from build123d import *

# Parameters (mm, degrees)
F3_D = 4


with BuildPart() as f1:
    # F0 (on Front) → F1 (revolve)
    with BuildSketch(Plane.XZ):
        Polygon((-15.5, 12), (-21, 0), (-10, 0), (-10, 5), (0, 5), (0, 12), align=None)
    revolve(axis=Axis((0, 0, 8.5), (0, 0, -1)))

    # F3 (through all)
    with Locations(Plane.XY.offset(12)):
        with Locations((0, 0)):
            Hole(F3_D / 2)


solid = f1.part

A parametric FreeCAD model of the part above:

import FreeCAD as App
import Part
import Sketcher
from FreeCAD import Vector
Q = App.Units.Quantity


def add_polygon(sketch, points):
    """Adds a closed chain of lines whose ends are joined by coincident constraints."""
    first, n = sketch.GeometryCount, len(points)
    for a, b in zip(points, points[1:] + points[:1]):
        sketch.addGeometry(Part.LineSegment(App.Vector(*a, 0), App.Vector(*b, 0)), False)
    for i in range(n):
        sketch.addConstraint(Sketcher.Constraint("Coincident", first + i, 2, first + (i + 1) % n, 1))

doc = App.newDocument("Part")
params = doc.addObject("Spreadsheet::Sheet", "Params")
for row, (alias, value) in enumerate([
    ("sketch1_width", "11 mm"),
    ("sketch1_width2", "10 mm"),
    ("sketch1_height", "5 mm"),
    ("sketch1_height2", "7 mm"),
    ("sketch1_width3", "15.5 mm"),
    ("revolution_angle", "360 deg"),
    ("sketch2_diameter", "4 mm"),
    ("hole_diameter", "4 mm"),
], start=1):
    params.set(f"A{row}", alias)
    params.set(f"B{row}", "=" + value)
    params.setAlias(f"B{row}", alias)

body = doc.addObject("PartDesign::Body", "Body")

# Sketch on XZ plane
sketch1 = body.newObject("Sketcher::SketchObject", "Sketch")
sketch1.AttachmentSupport = (doc.getObject("XZ_Plane"), [""])
sketch1.MapMode = "FlatFace"
add_polygon(sketch1, [(-16, 12), (-21, 0), (-10, 0), (-10, 5), (0, 5), (0, 12)])  # lines 0-5
sketch1.addConstraint(Sketcher.Constraint("Horizontal", 1))
sketch1.addConstraint(Sketcher.Constraint("Vertical", 2))
sketch1.addConstraint(Sketcher.Constraint("Horizontal", 3))
sketch1.addConstraint(Sketcher.Constraint("Vertical", 4))
sketch1.addConstraint(Sketcher.Constraint("Horizontal", 5))
sketch1.addConstraint(Sketcher.Constraint("PointOnObject", 0, 2, -1))
sketch1.addConstraint(Sketcher.Constraint("PointOnObject", 3, 2, -2))
sketch1.addConstraint(Sketcher.Constraint("DistanceX", 1, 1, 1, 2, Q("11 mm")))
sketch1.addConstraint(Sketcher.Constraint("DistanceX", 3, 1, 3, 2, Q("10 mm")))
sketch1.addConstraint(Sketcher.Constraint("DistanceY", 2, 1, 2, 2, Q("5 mm")))
sketch1.addConstraint(Sketcher.Constraint("DistanceY", 4, 1, 4, 2, Q("7 mm")))
sketch1.addConstraint(Sketcher.Constraint("DistanceX", 5, 2, 5, 1, Q("15.5 mm")))
sketch1.setExpression("Constraints[13]", "Params.sketch1_width")
sketch1.setExpression("Constraints[14]", "Params.sketch1_width2")
sketch1.setExpression("Constraints[15]", "Params.sketch1_height")
sketch1.setExpression("Constraints[16]", "Params.sketch1_height2")
sketch1.setExpression("Constraints[17]", "Params.sketch1_width3")
revolution = body.newObject("PartDesign::Revolution", "Revolution")
revolution.Profile = sketch1
revolution.ReferenceAxis = (sketch1, ["V_Axis"])
revolution.setExpression("Angle", "Params.revolution_angle")

# Sketch on XY plane
sketch2 = body.newObject("Sketcher::SketchObject", "Sketch001")
sketch2.AttachmentSupport = (doc.getObject("XY_Plane"), [""])
sketch2.MapMode = "FlatFace"
sketch2.AttachmentOffset = App.Placement(Vector(0, 0, 12), App.Rotation())
sketch2.addGeometry(Part.Circle(Vector(0, 0, 0), Vector(0, 0, 1), 2), False)
sketch2.addConstraint(Sketcher.Constraint("Coincident", 0, 3, -1, 1))
sketch2.addConstraint(Sketcher.Constraint("Diameter", 0, Q("4 mm")))
sketch2.setExpression("Constraints[1]", "Params.sketch2_diameter")
doc.recompute()
hole = body.newObject("PartDesign::Hole", "Hole")
hole.Profile = sketch2
hole.ThreadType = "None"
hole.setExpression("Diameter", "Params.hole_diameter")
hole.DepthType = "ThroughAll"

doc.recompute()
